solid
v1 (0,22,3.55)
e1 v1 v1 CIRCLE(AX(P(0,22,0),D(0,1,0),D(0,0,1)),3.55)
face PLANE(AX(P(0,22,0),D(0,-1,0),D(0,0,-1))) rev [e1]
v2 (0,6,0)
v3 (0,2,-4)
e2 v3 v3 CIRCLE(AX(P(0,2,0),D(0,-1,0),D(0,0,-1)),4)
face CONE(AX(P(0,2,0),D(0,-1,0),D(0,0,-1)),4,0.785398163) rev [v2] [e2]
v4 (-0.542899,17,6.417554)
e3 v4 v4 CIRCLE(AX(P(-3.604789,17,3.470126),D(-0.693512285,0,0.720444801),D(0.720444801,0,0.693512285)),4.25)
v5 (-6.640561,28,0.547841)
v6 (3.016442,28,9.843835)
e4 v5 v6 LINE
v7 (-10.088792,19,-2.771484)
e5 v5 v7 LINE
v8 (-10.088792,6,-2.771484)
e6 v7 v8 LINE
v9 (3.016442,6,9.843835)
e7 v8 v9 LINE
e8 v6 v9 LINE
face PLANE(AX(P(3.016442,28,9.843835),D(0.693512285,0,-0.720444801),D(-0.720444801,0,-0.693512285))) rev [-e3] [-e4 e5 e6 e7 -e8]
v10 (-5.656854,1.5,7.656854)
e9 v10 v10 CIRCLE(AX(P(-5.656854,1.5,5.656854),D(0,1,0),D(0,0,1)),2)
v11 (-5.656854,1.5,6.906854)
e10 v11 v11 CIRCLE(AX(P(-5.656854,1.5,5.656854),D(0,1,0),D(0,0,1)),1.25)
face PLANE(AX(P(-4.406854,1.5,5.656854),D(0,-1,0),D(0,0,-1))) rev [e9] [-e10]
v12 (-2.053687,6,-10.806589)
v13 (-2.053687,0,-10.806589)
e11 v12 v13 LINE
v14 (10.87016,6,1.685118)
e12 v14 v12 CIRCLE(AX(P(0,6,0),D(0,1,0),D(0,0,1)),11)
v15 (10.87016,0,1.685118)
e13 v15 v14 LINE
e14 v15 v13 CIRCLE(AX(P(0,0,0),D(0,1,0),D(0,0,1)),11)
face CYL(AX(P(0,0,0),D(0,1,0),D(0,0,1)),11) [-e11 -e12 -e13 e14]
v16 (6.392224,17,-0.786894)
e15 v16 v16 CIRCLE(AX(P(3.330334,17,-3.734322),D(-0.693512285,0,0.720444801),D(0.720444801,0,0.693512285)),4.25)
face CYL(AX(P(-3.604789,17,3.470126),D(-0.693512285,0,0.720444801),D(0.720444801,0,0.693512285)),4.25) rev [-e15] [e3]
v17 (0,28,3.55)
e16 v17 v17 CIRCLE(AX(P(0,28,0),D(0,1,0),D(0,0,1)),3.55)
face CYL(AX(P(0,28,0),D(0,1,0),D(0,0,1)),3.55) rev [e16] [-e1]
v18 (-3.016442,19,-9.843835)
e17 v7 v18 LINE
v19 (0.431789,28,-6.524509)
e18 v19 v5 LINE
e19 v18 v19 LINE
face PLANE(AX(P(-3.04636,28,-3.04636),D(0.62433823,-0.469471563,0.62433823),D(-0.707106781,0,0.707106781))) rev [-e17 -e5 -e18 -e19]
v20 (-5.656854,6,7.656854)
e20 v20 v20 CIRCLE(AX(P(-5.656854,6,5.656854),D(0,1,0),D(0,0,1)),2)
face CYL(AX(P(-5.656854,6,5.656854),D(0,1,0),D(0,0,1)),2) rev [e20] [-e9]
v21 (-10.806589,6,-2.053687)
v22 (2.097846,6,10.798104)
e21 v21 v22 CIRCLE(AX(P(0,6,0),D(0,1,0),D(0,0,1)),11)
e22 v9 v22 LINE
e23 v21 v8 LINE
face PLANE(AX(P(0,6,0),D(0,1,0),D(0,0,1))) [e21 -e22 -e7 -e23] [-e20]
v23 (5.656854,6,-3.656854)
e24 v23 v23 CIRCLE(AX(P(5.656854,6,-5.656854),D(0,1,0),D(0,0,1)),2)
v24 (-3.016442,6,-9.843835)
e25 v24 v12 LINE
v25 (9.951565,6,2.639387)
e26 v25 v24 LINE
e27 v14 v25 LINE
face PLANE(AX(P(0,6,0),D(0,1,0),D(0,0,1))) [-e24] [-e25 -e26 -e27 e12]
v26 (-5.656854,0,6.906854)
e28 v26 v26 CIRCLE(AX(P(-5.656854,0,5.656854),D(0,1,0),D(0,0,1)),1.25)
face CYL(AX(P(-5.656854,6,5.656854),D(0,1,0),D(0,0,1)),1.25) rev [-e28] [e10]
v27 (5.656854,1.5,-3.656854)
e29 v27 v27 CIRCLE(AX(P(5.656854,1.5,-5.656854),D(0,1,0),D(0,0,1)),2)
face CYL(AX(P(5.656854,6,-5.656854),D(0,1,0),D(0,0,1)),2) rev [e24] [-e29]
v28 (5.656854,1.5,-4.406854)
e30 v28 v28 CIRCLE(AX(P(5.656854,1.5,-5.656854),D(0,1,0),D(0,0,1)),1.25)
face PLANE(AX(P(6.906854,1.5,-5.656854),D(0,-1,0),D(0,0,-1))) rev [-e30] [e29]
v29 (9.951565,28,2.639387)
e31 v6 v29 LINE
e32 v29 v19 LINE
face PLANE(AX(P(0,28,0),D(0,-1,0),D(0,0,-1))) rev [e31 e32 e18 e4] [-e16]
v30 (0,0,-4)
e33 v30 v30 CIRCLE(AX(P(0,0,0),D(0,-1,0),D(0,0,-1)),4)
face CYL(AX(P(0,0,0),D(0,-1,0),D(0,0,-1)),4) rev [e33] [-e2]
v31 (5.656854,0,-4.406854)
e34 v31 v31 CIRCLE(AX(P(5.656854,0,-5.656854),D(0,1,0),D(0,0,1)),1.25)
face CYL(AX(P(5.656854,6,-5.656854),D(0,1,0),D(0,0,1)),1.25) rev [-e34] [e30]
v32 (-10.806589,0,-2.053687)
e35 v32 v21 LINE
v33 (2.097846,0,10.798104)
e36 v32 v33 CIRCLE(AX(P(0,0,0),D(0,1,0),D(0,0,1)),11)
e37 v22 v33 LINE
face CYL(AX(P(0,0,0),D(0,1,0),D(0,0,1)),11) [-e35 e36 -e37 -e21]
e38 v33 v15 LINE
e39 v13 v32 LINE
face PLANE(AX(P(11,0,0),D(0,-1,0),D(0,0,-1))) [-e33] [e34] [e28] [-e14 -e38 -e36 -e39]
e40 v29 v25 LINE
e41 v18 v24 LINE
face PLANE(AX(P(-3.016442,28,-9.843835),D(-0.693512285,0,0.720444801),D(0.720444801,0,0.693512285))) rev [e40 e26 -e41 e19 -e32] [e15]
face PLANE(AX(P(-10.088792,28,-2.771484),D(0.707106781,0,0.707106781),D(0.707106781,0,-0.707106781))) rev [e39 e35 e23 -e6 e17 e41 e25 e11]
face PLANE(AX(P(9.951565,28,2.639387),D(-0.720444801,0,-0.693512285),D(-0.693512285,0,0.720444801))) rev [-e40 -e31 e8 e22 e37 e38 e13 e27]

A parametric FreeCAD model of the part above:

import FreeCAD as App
import Part
import Sketcher
from FreeCAD import Vector
Q = App.Units.Quantity


def edges_at(feature, points):
    """Names of the edges that pass closest to the given points."""
    edges = feature.Shape.Edges
    near = lambda p: min(range(len(edges)), key=lambda i: edges[i].distToShape(Part.Vertex(*p))[0])
    return sorted({f"Edge{near(p) + 1}" for p in points})

doc = App.newDocument("Part")
body = doc.addObject("PartDesign::Body", "Body")

# Sketch on XY plane
sketch1 = body.newObject("Sketcher::SketchObject", "Sketch")
sketch1.AttachmentSupport = (doc.getObject("XY_Plane"), [""])
sketch1.MapMode = "FlatFace"
sketch1.addGeometry([
    Part.LineSegment(Vector(11, 6, 0), Vector(11, 0, 0)),
    Part.LineSegment(Vector(11, 0, 0), Vector(0, 0, 0)),
    Part.LineSegment(Vector(0, 0, 0), Vector(0, 6, 0)),
    Part.LineSegment(Vector(0, 6, 0), Vector(11, 6, 0)),
], False)
sketch1.addConstraint([
    Sketcher.Constraint("Coincident", 0, 2, 1, 1),
    Sketcher.Constraint("Coincident", 1, 2, 2, 1),
    Sketcher.Constraint("Coincident", 2, 2, 3, 1),
    Sketcher.Constraint("Coincident", 3, 2, 0, 1),
    Sketcher.Constraint("Vertical", 0),
    Sketcher.Constraint("Horizontal", 1),
    Sketcher.Constraint("Vertical", 2),
    Sketcher.Constraint("Horizontal", 3),
    Sketcher.Constraint("Coincident", 1, 2, -1, 1),
    Sketcher.Constraint("DistanceX", 1, 2, 1, 1, 11.0),
    Sketcher.Constraint("DistanceY", 0, 2, 0, 1, 6.0),
])
revolution = body.newObject("PartDesign::Revolution", "Revolution")
revolution.Profile = sketch1
revolution.ReferenceAxis = (sketch1, ["V_Axis"])
revolution.Angle = 360

# Sketch on XZ plane
sketch2 = body.newObject("Sketcher::SketchObject", "Sketch001")
sketch2.AttachmentSupport = (doc.getObject("XZ_Plane"), [""])
sketch2.MapMode = "FlatFace"
sketch2.AttachmentOffset = App.Placement(Vector(0, 0, -6), App.Rotation())
sketch2.addGeometry([
    Part.LineSegment(Vector(3.016442, 9.843835, 0), Vector(9.951565, 2.639387, 0)),
    Part.LineSegment(Vector(9.951565, 2.639387, 0), Vector(-3.016442, -9.843835, 0)),
    Part.LineSegment(Vector(-3.016442, -9.843835, 0), Vector(-10.088792, -2.771484, 0)),
    Part.LineSegment(Vector(-10.088792, -2.771484, 0), Vector(3.016442, 9.843835, 0)),
], False)
sketch2.addConstraint([
    Sketcher.Constraint("Coincident", 0, 2, 1, 1),
    Sketcher.Constraint("Coincident", 1, 2, 2, 1),
    Sketcher.Constraint("Coincident", 2, 2, 3, 1),
    Sketcher.Constraint("Coincident", 3, 2, 0, 1),
    Sketcher.Constraint("Symmetric", 1, 2, 3, 2, -1, 1),
    Sketcher.Constraint("Perpendicular", 0, 1),
    Sketcher.Constraint("Parallel", 1, 3),
    Sketcher.Constraint("Angle", 2, Q("135 deg")),
    Sketcher.Constraint("Distance", 0, 10.0),
    Sketcher.Constraint("Distance", 1, 18.0),
    Sketcher.Constraint("DistanceX", 1, 2, -1, 1, 3.016442),
])
pad1 = body.newObject("PartDesign::Pad", "Pad")
pad1.Profile = sketch2
pad1.Length = 22
pad1.Reversed = True

# Sketch on XZ plane
sketch3 = body.newObject("Sketcher::SketchObject", "Sketch002")
sketch3.AttachmentSupport = (doc.getObject("XZ_Plane"), [""])
sketch3.MapMode = "FlatFace"
sketch3.AttachmentOffset = App.Placement(Vector(0, 0, -28), App.Rotation())
sketch3.addGeometry(Part.Circle(Vector(0, 0, 0), Vector(0, 0, 1), 3.55), False)
sketch3.addConstraint([
    Sketcher.Constraint("Coincident", 0, 3, -1, 1),
    Sketcher.Constraint("Diameter", 0, 7.1),
])
doc.recompute()
hole = body.newObject("PartDesign::Hole", "Hole")
hole.Profile = sketch3
hole.ThreadType = "None"
hole.Diameter = 7.1
hole.DepthType = "Dimension"
hole.Depth = 6
hole.DrillPoint = "Flat"
hole.Reversed = True

# Sketch on an angled plane
sketch4 = body.newObject("Sketcher::SketchObject", "Sketch003")
sketch4.Placement = App.Placement(Vector(-3.467561, 0, 3.602224), App.Rotation(Vector(0.720444801, 0, 0.693512285), Vector(0, 1.000000001, 0), Vector(-0.693512285, 0, 0.720444801), "ZXY"))
sketch4.addGeometry(Part.Circle(Vector(-0.190476, 17, 0), Vector(0, 0, 1), 4.25), False)
sketch4.addConstraint([
    Sketcher.Constraint("Diameter", 0, 8.5),
    Sketcher.Constraint("DistanceY", -1, 1, 0, 3, 17.0),
    Sketcher.Constraint("DistanceX", 0, 3, -1, 1, 0.190476),
])
doc.recompute()
hole2 = body.newObject("PartDesign::Hole", "Hole001")
hole2.Profile = sketch4
hole2.ThreadType = "None"
hole2.Diameter = 8.5
hole2.DepthType = "ThroughAll"

# Sketch on XZ plane
sketch5 = body.newObject("Sketcher::SketchObject", "Sketch004")
sketch5.AttachmentSupport = (doc.getObject("XZ_Plane"), [""])
sketch5.MapMode = "FlatFace"
sketch5.AttachmentOffset = App.Placement(Vector(0, 0, -6), App.Rotation())
sketch5.addGeometry([
    Part.Circle(Vector(5.656854, -5.656854, 0), Vector(0, 0, 1), 1.25),
    Part.Circle(Vector(-5.656854, 5.656854, 0), Vector(0, 0, 1), 1.25),
], False)
sketch5.addConstraint([
    Sketcher.Constraint("Equal", 0, 1),
    Sketcher.Constraint("Symmetric", 0, 3, 1, 3, -1, 1),
    Sketcher.Constraint("Diameter", 0, 2.5),
    Sketcher.Constraint("DistanceX", 1, 3, 0, 3, 11.313708),
    Sketcher.Constraint("DistanceY", 0, 3, 1, 3, 11.313708),
])
doc.recompute()
hole3 = body.newObject("PartDesign::Hole", "Hole002")
hole3.Profile = sketch5
hole3.ThreadType = "None"
hole3.Diameter = 2.5
hole3.DepthType = "ThroughAll"
hole3.HoleCutType = "Counterbore"
hole3.HoleCutDiameter = 4
hole3.HoleCutDepth = 4.5
hole3.Reversed = True

# Sketch on XZ plane
sketch6 = body.newObject("Sketcher::SketchObject", "Sketch005")
sketch6.AttachmentSupport = (doc.getObject("XZ_Plane"), [""])
sketch6.MapMode = "FlatFace"
sketch6.addGeometry(Part.Circle(Vector(0, 0, 0), Vector(0, 0, 1), 4), False)
sketch6.addConstraint([
    Sketcher.Constraint("Coincident", 0, 3, -1, 1),
    Sketcher.Constraint("Diameter", 0, 8.0),
])
doc.recompute()
hole4 = body.newObject("PartDesign::Hole", "Hole003")
hole4.Profile = sketch6
hole4.ThreadType = "None"
hole4.Diameter = 8
hole4.DepthType = "Dimension"
hole4.Depth = 2
hole4.DrillPoint = "Angled"
hole4.DrillPointAngle = 90
doc.recompute()

chamfer = body.newObject("PartDesign::Chamfer", "Chamfer")
chamfer.Base = (hole4, edges_at(hole4, [(-6.553, 28, -6.308)]))
chamfer.ChamferType = "Two distances"
chamfer.Size = 9
chamfer.Size2 = 4.785385

# Sketch on XZ plane
sketch7 = body.newObject("Sketcher::SketchObject", "Sketch006")
sketch7.AttachmentSupport = (doc.getObject("XZ_Plane"), [""])
sketch7.MapMode = "FlatFace"
sketch7.AttachmentOffset = App.Placement(Vector(0, 0, -6), App.Rotation())
sketch7.addGeometry([
    Part.LineSegment(Vector(11.620583, 0.905552, 0), Vector(1.204297, 11.726354, 0)),  # 0
    Part.LineSegment(Vector(1.204297, 11.726354, 0), Vector(5.129587, 15.504904, 0)),  # 1
    Part.LineSegment(Vector(5.129587, 15.504904, 0), Vector(15.545873, 4.684101, 0)),  # 2
    Part.LineSegment(Vector(15.545873, 4.684101, 0), Vector(11.620583, 0.905552, 0)),  # 3
    Part.LineSegment(Vector(-12.47794, -0.382337, 0), Vector(0.54557, -13.405846, 0)),  # 4
    Part.LineSegment(Vector(0.54557, -13.405846, 0), Vector(-3.016442, -16.967857, 0)),  # 5
    Part.LineSegment(Vector(-3.016442, -16.967857, 0), Vector(-16.039951, -3.944348, 0)),  # 6
    Part.LineSegment(Vector(-16.039951, -3.944348, 0), Vector(-12.47794, -0.382337, 0)),  # 7
], False)
sketch7.addConstraint([
    Sketcher.Constraint("Coincident", 0, 2, 1, 1),
    Sketcher.Constraint("Coincident", 1, 2, 2, 1),
    Sketcher.Constraint("Coincident", 2, 2, 3, 1),
    Sketcher.Constraint("Coincident", 3, 2, 0, 1),
    Sketcher.Constraint("Coincident", 4, 2, 5, 1),
    Sketcher.Constraint("Coincident", 5, 2, 6, 1),
    Sketcher.Constraint("Coincident", 6, 2, 7, 1),
    Sketcher.Constraint("Coincident", 7, 2, 4, 1),
    Sketcher.Constraint("Perpendicular", 0, 1),
    Sketcher.Constraint("Perpendicular", 1, 2),
    Sketcher.Constraint("Perpendicular", 2, 3),
    Sketcher.Constraint("Perpendicular", 4, 5),
    Sketcher.Constraint("Perpendicular", 5, 6),
    Sketcher.Constraint("Perpendicular", 6, 7),
    Sketcher.Constraint("Angle", 4, Q("-45 deg")),
    Sketcher.Constraint("DistanceY", -1, 1, 2, 2, 4.684101),
    Sketcher.Constraint("DistanceY", 4, 2, 0, 2, 25.1322),
    Sketcher.Constraint("DistanceY", 6, 2, 0, 2, 15.670702),
    Sketcher.Constraint("DistanceY", 6, 2, 3, 2, 4.8499),
    Sketcher.Constraint("DistanceY", -1, 1, 3, 2, 0.905552),
    Sketcher.Constraint("DistanceX", -1, 1, 4, 2, 0.54557),
    Sketcher.Constraint("DistanceX", 5, 2, -1, 1, 3.016442),
    Sketcher.Constraint("DistanceX", 0, 2, 1, 2, 3.92529),
    Sketcher.Constraint("DistanceX", 5, 2, 0, 2, 4.220739),
])
pocket1 = body.newObject("PartDesign::Pocket", "Pocket")
pocket1.Profile = sketch7
pocket1.Length = 10
pocket1.Reversed = True

doc.recompute()
